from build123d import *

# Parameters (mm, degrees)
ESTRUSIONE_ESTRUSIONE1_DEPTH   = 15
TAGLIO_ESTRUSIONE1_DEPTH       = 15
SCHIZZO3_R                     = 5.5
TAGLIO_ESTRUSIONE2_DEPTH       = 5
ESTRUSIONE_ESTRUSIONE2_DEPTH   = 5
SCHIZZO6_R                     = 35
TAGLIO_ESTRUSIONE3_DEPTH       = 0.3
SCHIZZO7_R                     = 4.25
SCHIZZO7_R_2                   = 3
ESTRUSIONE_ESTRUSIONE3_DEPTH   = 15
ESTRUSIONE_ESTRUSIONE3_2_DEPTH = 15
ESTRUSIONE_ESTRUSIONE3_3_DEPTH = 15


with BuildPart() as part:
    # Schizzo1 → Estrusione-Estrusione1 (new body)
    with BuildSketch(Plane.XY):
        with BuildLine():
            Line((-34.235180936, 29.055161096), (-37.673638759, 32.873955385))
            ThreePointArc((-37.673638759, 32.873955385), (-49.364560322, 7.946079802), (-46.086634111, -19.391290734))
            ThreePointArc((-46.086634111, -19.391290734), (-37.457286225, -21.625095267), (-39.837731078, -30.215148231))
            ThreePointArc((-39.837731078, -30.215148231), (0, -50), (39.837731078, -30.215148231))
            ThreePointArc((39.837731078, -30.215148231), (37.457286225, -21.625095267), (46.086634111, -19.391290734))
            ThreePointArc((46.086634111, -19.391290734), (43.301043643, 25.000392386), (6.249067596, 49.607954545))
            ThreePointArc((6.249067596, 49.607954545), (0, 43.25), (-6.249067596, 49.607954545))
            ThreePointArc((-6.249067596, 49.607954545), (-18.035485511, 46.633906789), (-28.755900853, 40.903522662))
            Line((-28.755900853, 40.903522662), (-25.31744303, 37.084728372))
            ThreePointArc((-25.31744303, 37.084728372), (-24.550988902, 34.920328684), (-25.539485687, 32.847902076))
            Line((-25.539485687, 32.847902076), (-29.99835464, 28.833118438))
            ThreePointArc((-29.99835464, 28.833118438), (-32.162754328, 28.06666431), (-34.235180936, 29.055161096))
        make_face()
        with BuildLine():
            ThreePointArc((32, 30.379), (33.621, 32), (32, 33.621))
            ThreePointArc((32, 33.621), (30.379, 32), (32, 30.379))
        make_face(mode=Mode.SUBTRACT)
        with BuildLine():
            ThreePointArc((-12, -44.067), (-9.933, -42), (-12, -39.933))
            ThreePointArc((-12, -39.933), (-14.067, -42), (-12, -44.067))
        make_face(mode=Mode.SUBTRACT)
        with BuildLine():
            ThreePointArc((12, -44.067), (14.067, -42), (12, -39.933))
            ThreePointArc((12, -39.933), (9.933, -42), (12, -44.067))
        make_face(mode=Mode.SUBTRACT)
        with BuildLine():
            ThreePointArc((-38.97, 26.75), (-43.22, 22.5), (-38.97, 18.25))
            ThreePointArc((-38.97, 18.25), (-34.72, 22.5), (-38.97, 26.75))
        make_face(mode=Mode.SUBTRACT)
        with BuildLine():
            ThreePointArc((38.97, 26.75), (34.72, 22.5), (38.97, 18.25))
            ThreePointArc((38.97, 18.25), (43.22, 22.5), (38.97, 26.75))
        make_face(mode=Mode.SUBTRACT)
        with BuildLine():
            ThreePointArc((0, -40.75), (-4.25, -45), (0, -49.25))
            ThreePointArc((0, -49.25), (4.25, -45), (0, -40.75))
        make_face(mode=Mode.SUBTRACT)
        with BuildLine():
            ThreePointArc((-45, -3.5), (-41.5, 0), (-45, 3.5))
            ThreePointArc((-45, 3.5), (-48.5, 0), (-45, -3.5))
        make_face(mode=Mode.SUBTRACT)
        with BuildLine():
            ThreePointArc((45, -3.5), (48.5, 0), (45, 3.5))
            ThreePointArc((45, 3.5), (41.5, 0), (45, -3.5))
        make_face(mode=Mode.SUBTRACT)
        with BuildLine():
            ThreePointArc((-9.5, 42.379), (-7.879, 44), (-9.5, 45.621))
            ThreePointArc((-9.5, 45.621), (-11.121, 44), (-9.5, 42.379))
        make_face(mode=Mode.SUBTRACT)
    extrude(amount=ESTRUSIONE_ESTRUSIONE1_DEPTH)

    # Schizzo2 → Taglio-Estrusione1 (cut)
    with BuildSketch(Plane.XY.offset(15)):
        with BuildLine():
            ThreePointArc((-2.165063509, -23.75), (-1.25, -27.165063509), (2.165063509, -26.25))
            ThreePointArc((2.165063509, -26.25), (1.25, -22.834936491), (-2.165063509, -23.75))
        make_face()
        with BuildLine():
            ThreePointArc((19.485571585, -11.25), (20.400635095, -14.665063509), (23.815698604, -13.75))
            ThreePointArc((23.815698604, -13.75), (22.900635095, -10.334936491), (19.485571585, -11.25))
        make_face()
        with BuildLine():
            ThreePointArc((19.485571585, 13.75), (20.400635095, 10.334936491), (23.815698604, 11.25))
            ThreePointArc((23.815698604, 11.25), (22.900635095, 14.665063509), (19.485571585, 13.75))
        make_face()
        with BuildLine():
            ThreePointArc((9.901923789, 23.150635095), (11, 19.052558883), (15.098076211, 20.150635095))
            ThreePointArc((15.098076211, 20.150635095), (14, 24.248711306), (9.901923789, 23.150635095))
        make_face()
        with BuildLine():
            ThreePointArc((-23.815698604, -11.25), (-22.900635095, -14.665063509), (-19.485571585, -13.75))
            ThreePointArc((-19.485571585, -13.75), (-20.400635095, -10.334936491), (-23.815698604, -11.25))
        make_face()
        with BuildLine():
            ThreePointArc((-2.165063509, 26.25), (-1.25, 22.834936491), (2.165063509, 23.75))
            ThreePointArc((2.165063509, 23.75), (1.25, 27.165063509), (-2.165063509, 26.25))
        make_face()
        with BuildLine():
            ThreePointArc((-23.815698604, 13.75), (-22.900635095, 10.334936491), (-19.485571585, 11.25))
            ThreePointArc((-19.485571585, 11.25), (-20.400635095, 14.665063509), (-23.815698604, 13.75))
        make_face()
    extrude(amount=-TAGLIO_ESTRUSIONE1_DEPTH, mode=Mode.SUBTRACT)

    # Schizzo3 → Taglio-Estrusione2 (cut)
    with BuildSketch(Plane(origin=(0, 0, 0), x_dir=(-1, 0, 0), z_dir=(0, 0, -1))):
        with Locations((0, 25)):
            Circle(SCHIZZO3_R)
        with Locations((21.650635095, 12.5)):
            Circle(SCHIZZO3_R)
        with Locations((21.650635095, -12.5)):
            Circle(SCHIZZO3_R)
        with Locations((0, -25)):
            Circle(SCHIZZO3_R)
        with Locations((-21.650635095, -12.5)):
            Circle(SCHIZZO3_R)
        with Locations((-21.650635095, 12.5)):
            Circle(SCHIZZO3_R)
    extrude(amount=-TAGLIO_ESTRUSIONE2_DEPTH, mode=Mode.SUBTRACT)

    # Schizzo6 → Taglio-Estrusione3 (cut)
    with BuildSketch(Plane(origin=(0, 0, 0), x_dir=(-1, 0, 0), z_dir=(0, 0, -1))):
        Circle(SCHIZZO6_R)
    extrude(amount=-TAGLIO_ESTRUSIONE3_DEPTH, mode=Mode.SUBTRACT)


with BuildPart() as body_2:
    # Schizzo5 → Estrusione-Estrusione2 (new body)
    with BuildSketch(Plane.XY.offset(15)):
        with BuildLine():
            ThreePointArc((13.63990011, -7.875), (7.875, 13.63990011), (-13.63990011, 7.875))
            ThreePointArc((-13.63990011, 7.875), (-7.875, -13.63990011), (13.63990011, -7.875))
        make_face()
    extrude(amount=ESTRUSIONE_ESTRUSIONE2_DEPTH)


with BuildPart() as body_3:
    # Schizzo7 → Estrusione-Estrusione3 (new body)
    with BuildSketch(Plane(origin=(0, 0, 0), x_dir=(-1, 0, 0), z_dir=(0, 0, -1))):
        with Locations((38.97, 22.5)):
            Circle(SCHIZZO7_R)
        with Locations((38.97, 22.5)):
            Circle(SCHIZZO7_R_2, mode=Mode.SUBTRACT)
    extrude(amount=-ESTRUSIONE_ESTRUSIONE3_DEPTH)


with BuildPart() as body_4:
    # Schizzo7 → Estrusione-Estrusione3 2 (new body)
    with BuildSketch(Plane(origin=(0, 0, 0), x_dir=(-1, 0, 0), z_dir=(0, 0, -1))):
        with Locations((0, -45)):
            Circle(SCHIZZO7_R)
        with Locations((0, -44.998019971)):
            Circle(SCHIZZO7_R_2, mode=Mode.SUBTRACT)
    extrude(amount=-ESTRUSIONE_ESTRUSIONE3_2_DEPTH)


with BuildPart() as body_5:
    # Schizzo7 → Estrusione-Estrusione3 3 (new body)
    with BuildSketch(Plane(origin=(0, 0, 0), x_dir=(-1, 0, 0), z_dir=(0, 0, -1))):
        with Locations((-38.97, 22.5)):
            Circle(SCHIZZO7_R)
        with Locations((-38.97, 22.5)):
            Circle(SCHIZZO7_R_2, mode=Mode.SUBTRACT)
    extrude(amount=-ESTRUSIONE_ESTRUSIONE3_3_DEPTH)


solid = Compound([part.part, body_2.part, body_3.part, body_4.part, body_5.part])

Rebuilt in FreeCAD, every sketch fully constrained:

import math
import FreeCAD as App
import Part
import Sketcher
from FreeCAD import Vector
Q = App.Units.Quantity

doc = App.newDocument("Part")
body = doc.addObject("PartDesign::Body", "Body")

sketch1 = body.newObject("Sketcher::SketchObject", "Sketch")
sketch1.AttachmentSupport = (doc.getObject("XY_Plane"), [""])
sketch1.MapMode = "FlatFace"
sketch1.addGeometry(Part.LineSegment(Vector(-34.235181, 29.055161, 0), Vector(-37.673639, 32.873955, 0)), False)
sketch1.addGeometry(Part.ArcOfCircle(Part.Circle(Vector(0, 0, 0), Vector(0, 0, 1), 50), math.radians(138.892103), math.radians(202.819283)), False)
sketch1.addGeometry(Part.ArcOfCircle(Part.Circle(Vector(-42.87, -24.75, 0), Vector(0, 0, 1), 6.25), math.radians(-60.976846), math.radians(120.974829)), False)
sketch1.addGeometry(Part.ArcOfCircle(Part.Circle(Vector(0, 0, 0), Vector(0, 0, 1), 50), math.radians(-142.8213), math.radians(-37.1787)), False)
sketch1.addGeometry(Part.ArcOfCircle(Part.Circle(Vector(42.87, -24.75, 0), Vector(0, 0, 1), 6.25), math.radians(59.025171), math.radians(240.976846)), False)
sketch1.addGeometry(Part.ArcOfCircle(Part.Circle(Vector(0, 0, 0), Vector(0, 0, 1), 50), math.radians(-22.819283), math.radians(82.820321)), False)
sketch1.addGeometry(Part.ArcOfCircle(Part.Circle(Vector(0, 49.5, 0), Vector(0, 0, 1), 6.25), math.radians(179.010296), math.radians(360.989704)), False)
sketch1.addGeometry(Part.ArcOfCircle(Part.Circle(Vector(0, 0, 0), Vector(0, 0, 1), 50), math.radians(97.179679), math.radians(125.107897)), False)
sketch1.addGeometry(Part.LineSegment(Vector(-28.755901, 40.903523, 0), Vector(-25.317443, 37.084728, 0)), False)
sketch1.addGeometry(Part.ArcOfCircle(Part.Circle(Vector(-27.546878, 35.077337, 0), Vector(0, 0, 1), 3), math.radians(-48), math.radians(42)), False)
sketch1.addGeometry(Part.LineSegment(Vector(-25.539486, 32.847902, 0), Vector(-29.998355, 28.833118, 0)), False)
sketch1.addGeometry(Part.ArcOfCircle(Part.Circle(Vector(-32.005746, 31.062553, 0), Vector(0, 0, 1), 3), math.radians(-138), math.radians(-48)), False)
sketch1.addGeometry(Part.Circle(Vector(-12, -42, 0), Vector(0, 0, 1), 2.067), False)
sketch1.addGeometry(Part.Circle(Vector(0, -45, 0), Vector(0, 0, 1), 4.25), False)
sketch1.addGeometry(Part.Circle(Vector(12, -42, 0), Vector(0, 0, 1), 2.067), False)
sketch1.addGeometry(Part.Circle(Vector(-45, 0, 0), Vector(0, 0, 1), 3.5), False)
sketch1.addGeometry(Part.Circle(Vector(-38.97, 22.5, 0), Vector(0, 0, 1), 4.25), False)
sketch1.addGeometry(Part.Circle(Vector(-9.5, 44, 0), Vector(0, 0, 1), 1.621), False)
sketch1.addGeometry(Part.Circle(Vector(45, 0, 0), Vector(0, 0, 1), 3.5), False)
sketch1.addGeometry(Part.Circle(Vector(32, 32, 0), Vector(0, 0, 1), 1.621), False)
sketch1.addGeometry(Part.Circle(Vector(38.97, 22.5, 0), Vector(0, 0, 1), 4.25), False)
sketch1.addConstraint(Sketcher.Constraint("Coincident", 0, 2, 1, 1))
sketch1.addConstraint(Sketcher.Constraint("Coincident", 1, 2, 2, 2))
sketch1.addConstraint(Sketcher.Constraint("Coincident", 2, 1, 3, 1))
sketch1.addConstraint(Sketcher.Constraint("Coincident", 3, 2, 4, 2))
sketch1.addConstraint(Sketcher.Constraint("Coincident", 4, 1, 5, 1))
sketch1.addConstraint(Sketcher.Constraint("Coincident", 5, 2, 6, 2))
sketch1.addConstraint(Sketcher.Constraint("Coincident", 6, 1, 7, 1))
sketch1.addConstraint(Sketcher.Constraint("Coincident", 7, 2, 8, 1))
sketch1.addConstraint(Sketcher.Constraint("Tangent", 8, 2, 9, 2))
sketch1.addConstraint(Sketcher.Constraint("Tangent", 9, 1, 10, 1))
sketch1.addConstraint(Sketcher.Constraint("Tangent", 10, 2, 11, 2))
sketch1.addConstraint(Sketcher.Constraint("Tangent", 11, 1, 0, 1))
sketch1.addConstraint(Sketcher.Constraint("Coincident", 1, 3, -1, 1))
sketch1.addConstraint(Sketcher.Constraint("Coincident", 3, 3, -1, 1))
sketch1.addConstraint(Sketcher.Constraint("Coincident", 5, 3, -1, 1))
sketch1.addConstraint(Sketcher.Constraint("Coincident", 7, 3, -1, 1))
sketch1.addConstraint(Sketcher.Constraint("Equal", 1, 3))
sketch1.addConstraint(Sketcher.Constraint("Equal", 2, 4))
sketch1.addConstraint(Sketcher.Constraint("Equal", 3, 5))
sketch1.addConstraint(Sketcher.Constraint("Equal", 4, 6))
sketch1.addConstraint(Sketcher.Constraint("Equal", 5, 7))
sketch1.addConstraint(Sketcher.Constraint("Equal", 9, 11))
sketch1.addConstraint(Sketcher.Constraint("Equal", 12, 14))
sketch1.addConstraint(Sketcher.Constraint("Equal", 13, 16))
sketch1.addConstraint(Sketcher.Constraint("Equal", 15, 18))
sketch1.addConstraint(Sketcher.Constraint("Equal", 17, 19))
sketch1.addConstraint(Sketcher.Constraint("Equal", 16, 20))
sketch1.addConstraint(Sketcher.Constraint("Symmetric", 15, 3, 18, 3, -1, 1))
sketch1.addConstraint(Sketcher.Constraint("Symmetric", 2, 3, 4, 3, -2))
sketch1.addConstraint(Sketcher.Constraint("Symmetric", 12, 3, 14, 3, -2))
sketch1.addConstraint(Sketcher.Constraint("Symmetric", 16, 3, 20, 3, -2))
sketch1.addConstraint(Sketcher.Constraint("PointOnObject", 6, 3, -2))
sketch1.addConstraint(Sketcher.Constraint("PointOnObject", 13, 3, -2))
sketch1.addConstraint(Sketcher.Constraint("PointOnObject", 15, 3, -1))
sketch1.addConstraint(Sketcher.Constraint("Parallel", 0, 8))
sketch1.addConstraint(Sketcher.Constraint("Perpendicular", 8, 10))
sketch1.addConstraint(Sketcher.Constraint("Equal", 0, 8))
sketch1.addConstraint(Sketcher.Constraint("Diameter", 15, 7.0))
sketch1.addConstraint(Sketcher.Constraint("Radius", 1, 50.0))
sketch1.addConstraint(Sketcher.Constraint("Radius", 9, 3.0))
sketch1.addConstraint(Sketcher.Constraint("Diameter", 13, 8.5))
sketch1.addConstraint(Sketcher.Constraint("Angle", 0, Q("132 deg")))
sketch1.addConstraint(Sketcher.Constraint("Radius", 2, 6.25))
sketch1.addConstraint(Sketcher.Constraint("Distance", 10, 6.0))
sketch1.addConstraint(Sketcher.Constraint("Diameter", 12, 4.134))
sketch1.addConstraint(Sketcher.Constraint("Diameter", 17, 3.242))
sketch1.addConstraint(Sketcher.Constraint("DistanceX", 12, 3, -1, 1, 12.0))
sketch1.addConstraint(Sketcher.Constraint("DistanceY", 12, 3, -1, 1, 42.0))
sketch1.addConstraint(Sketcher.Constraint("DistanceY", 13, 3, -1, 1, 45.0))
sketch1.addConstraint(Sketcher.Constraint("DistanceX", 15, 3, -1, 1, 45.0))
sketch1.addConstraint(Sketcher.Constraint("DistanceY", -1, 1, 17, 3, 44.0))
sketch1.addConstraint(Sketcher.Constraint("DistanceX", -1, 1, 19, 3, 32.0))
sketch1.addConstraint(Sketcher.Constraint("DistanceY", -1, 1, 19, 3, 32.0))
sketch1.addConstraint(Sketcher.Constraint("DistanceY", -1, 1, 6, 3, 49.5))
sketch1.addConstraint(Sketcher.Constraint("DistanceY", -1, 1, 16, 3, 22.5))
sketch1.addConstraint(Sketcher.Constraint("DistanceX", 17, 3, -1, 1, 9.5))
sketch1.addConstraint(Sketcher.Constraint("DistanceX", 2, 3, -1, 1, 42.87))
sketch1.addConstraint(Sketcher.Constraint("DistanceY", 2, 3, -1, 1, 24.75))
sketch1.addConstraint(Sketcher.Constraint("DistanceX", 16, 3, -1, 1, 38.97))
sketch1.addConstraint(Sketcher.Constraint("DistanceY", 11, 3, 6, 1, 18.545402))
pad1 = body.newObject("PartDesign::Pad", "Pad")
pad1.Profile = sketch1
pad1.Length = 15

sketch2 = body.newObject("Sketcher::SketchObject", "Sketch001")
sketch2.AttachmentSupport = (doc.getObject("XY_Plane"), [""])
sketch2.MapMode = "FlatFace"
sketch2.AttachmentOffset = App.Placement(Vector(0, 0, 15), App.Rotation())
sketch2.addGeometry(Part.Circle(Vector(0, -25, 0), Vector(0, 0, 1), 2.5), False)
sketch2.addGeometry(Part.ArcOfCircle(Part.Circle(Vector(21.650635, -12.5, 0), Vector(0, 0, 1), 2.5), math.radians(150), math.radians(330)), False)
sketch2.addGeometry(Part.ArcOfCircle(Part.Circle(Vector(21.650635, -12.5, 0), Vector(0, 0, 1), 2.5), math.radians(-30), math.radians(150)), False)
sketch2.addGeometry(Part.ArcOfCircle(Part.Circle(Vector(21.650635, 12.5, 0), Vector(0, 0, 1), 2.5), math.radians(150), math.radians(330)), False)
sketch2.addGeometry(Part.ArcOfCircle(Part.Circle(Vector(21.650635, 12.5, 0), Vector(0, 0, 1), 2.5), math.radians(-30), math.radians(150)), False)
sketch2.addGeometry(Part.ArcOfCircle(Part.Circle(Vector(12.5, 21.650635, 0), Vector(0, 0, 1), 3), math.radians(150), math.radians(330)), False)
sketch2.addGeometry(Part.ArcOfCircle(Part.Circle(Vector(12.5, 21.650635, 0), Vector(0, 0, 1), 3), math.radians(-30), math.radians(150)), False)
sketch2.addGeometry(Part.ArcOfCircle(Part.Circle(Vector(-21.650635, -12.5, 0), Vector(0, 0, 1), 2.5), math.radians(150), math.radians(330)), False)
sketch2.addGeometry(Part.ArcOfCircle(Part.Circle(Vector(-21.650635, -12.5, 0), Vector(0, 0, 1), 2.5), math.radians(-30), math.radians(150)), False)
sketch2.addGeometry(Part.Circle(Vector(0, 25, 0), Vector(0, 0, 1), 2.5), False)
sketch2.addGeometry(Part.ArcOfCircle(Part.Circle(Vector(-21.650635, 12.5, 0), Vector(0, 0, 1), 2.5), math.radians(150), math.radians(330)), False)
sketch2.addGeometry(Part.ArcOfCircle(Part.Circle(Vector(-21.650635, 12.5, 0), Vector(0, 0, 1), 2.5), math.radians(-30), math.radians(150)), False)
sketch2.addConstraint(Sketcher.Constraint("Tangent", 1, 1, 2, 2))
sketch2.addConstraint(Sketcher.Constraint("Coincident", 2, 1, 1, 2))
sketch2.addConstraint(Sketcher.Constraint("Tangent", 3, 1, 4, 2))
sketch2.addConstraint(Sketcher.Constraint("Coincident", 4, 1, 3, 2))
sketch2.addConstraint(Sketcher.Constraint("Tangent", 5, 1, 6, 2))
sketch2.addConstraint(Sketcher.Constraint("Coincident", 6, 1, 5, 2))
sketch2.addConstraint(Sketcher.Constraint("Tangent", 7, 1, 8, 2))
sketch2.addConstraint(Sketcher.Constraint("Coincident", 8, 1, 7, 2))
sketch2.addConstraint(Sketcher.Constraint("Tangent", 10, 1, 11, 2))
sketch2.addConstraint(Sketcher.Constraint("Coincident", 11, 1, 10, 2))
sketch2.addConstraint(Sketcher.Constraint("Equal", 0, 1))
sketch2.addConstraint(Sketcher.Constraint("Equal", 2, 3))
sketch2.addConstraint(Sketcher.Constraint("Equal", 4, 7))
sketch2.addConstraint(Sketcher.Constraint("Equal", 8, 9))
sketch2.addConstraint(Sketcher.Constraint("Equal", 9, 10))
sketch2.addConstraint(Sketcher.Constraint("Symmetric", 3, 3, 7, 3, -1, 1))
sketch2.addConstraint(Sketcher.Constraint("Symmetric", 0, 3, 9, 3, -1, 1))
sketch2.addConstraint(Sketcher.Constraint("Symmetric", 1, 3, 10, 3, -1, 1))
sketch2.addConstraint(Sketcher.Constraint("Symmetric", 1, 3, 7, 3, -2))
sketch2.addConstraint(Sketcher.Constraint("PointOnObject", 0, 3, -2))
sketch2.addConstraint(Sketcher.Constraint("Horizontal", 1, 1, 7, 1))
sketch2.addConstraint(Sketcher.Constraint("Horizontal", 2, 1, 8, 1))
sketch2.addConstraint(Sketcher.Constraint("Horizontal", 3, 1, 10, 1))
sketch2.addConstraint(Sketcher.Constraint("Horizontal", 4, 1, 11, 1))
sketch2.addConstraint(Sketcher.Constraint("Vertical", 1, 1, 3, 1))
sketch2.addConstraint(Sketcher.Constraint("Vertical", 2, 1, 4, 1))
sketch2.addConstraint(Sketcher.Constraint("Diameter", 0, 5.0))
sketch2.addConstraint(Sketcher.Constraint("Radius", 5, 3.0))
sketch2.addConstraint(Sketcher.Constraint("DistanceY", 0, 3, -1, 1, 25.0))
sketch2.addConstraint(Sketcher.Constraint("DistanceY", 1, 3, 3, 3, 25.0))
sketch2.addConstraint(Sketcher.Constraint("DistanceY", 6, 1, 5, 1, 3.0))
sketch2.addConstraint(Sketcher.Constraint("DistanceX", -1, 1, 5, 3, 12.5))
sketch2.addConstraint(Sketcher.Constraint("DistanceY", 2, 1, 1, 1, 2.5))
sketch2.addConstraint(Sketcher.Constraint("DistanceY", 6, 3, 5, 1, 1.5))
sketch2.addConstraint(Sketcher.Constraint("DistanceY", 1, 1, -1, 1, 11.25))
sketch2.addConstraint(Sketcher.Constraint("DistanceX", -1, 1, 2, 1, 23.815699))
sketch2.addConstraint(Sketcher.Constraint("DistanceY", -1, 1, 5, 3, 21.650635))
pocket1 = body.newObject("PartDesign::Pocket", "Pocket")
pocket1.Profile = sketch2
pocket1.Length = 15

sketch3 = body.newObject("Sketcher::SketchObject", "Sketch002")
sketch3.AttachmentSupport = (doc.getObject("XY_Plane"), [""])
sketch3.MapMode = "FlatFace"
sketch3.addGeometry(Part.Circle(Vector(0, 25, 0), Vector(0, 0, 1), 5.5), False)
sketch3.addGeometry(Part.Circle(Vector(-21.650635, 12.5, 0), Vector(0, 0, 1), 5.5), False)
sketch3.addGeometry(Part.Circle(Vector(-21.650635, -12.5, 0), Vector(0, 0, 1), 5.5), False)
sketch3.addGeometry(Part.Circle(Vector(0, -25, 0), Vector(0, 0, 1), 5.5), False)
sketch3.addGeometry(Part.Circle(Vector(21.650635, -12.5, 0), Vector(0, 0, 1), 5.5), False)
sketch3.addGeometry(Part.Circle(Vector(21.650635, 12.5, 0), Vector(0, 0, 1), 5.5), False)
sketch3.addConstraint(Sketcher.Constraint("Equal", 0, 1))
sketch3.addConstraint(Sketcher.Constraint("Equal", 1, 2))
sketch3.addConstraint(Sketcher.Constraint("Equal", 2, 3))
sketch3.addConstraint(Sketcher.Constraint("Equal", 3, 4))
sketch3.addConstraint(Sketcher.Constraint("Equal", 4, 5))
sketch3.addConstraint(Sketcher.Constraint("Symmetric", 0, 3, 3, 3, -1, 1))
sketch3.addConstraint(Sketcher.Constraint("Symmetric", 1, 3, 4, 3, -1, 1))
sketch3.addConstraint(Sketcher.Constraint("Symmetric", 2, 3, 5, 3, -1, 1))
sketch3.addConstraint(Sketcher.Constraint("Symmetric", 2, 3, 4, 3, -2))
sketch3.addConstraint(Sketcher.Constraint("PointOnObject", 0, 3, -2))
sketch3.addConstraint(Sketcher.Constraint("Diameter", 0, 11.0))
sketch3.addConstraint(Sketcher.Constraint("DistanceY", -1, 1, 0, 3, 25.0))
sketch3.addConstraint(Sketcher.Constraint("DistanceY", 2, 3, 1, 3, 25.0))
sketch3.addConstraint(Sketcher.Constraint("DistanceX", 2, 3, 4, 3, 43.30127))
pocket2 = body.newObject("PartDesign::Pocket", "Pocket001")
pocket2.Profile = sketch3
pocket2.Length = 5
pocket2.Reversed = True

sketch4 = body.newObject("Sketcher::SketchObject", "Sketch003")
sketch4.AttachmentSupport = (doc.getObject("XY_Plane"), [""])
sketch4.MapMode = "FlatFace"
sketch4.addGeometry(Part.Circle(Vector(0, 0, 0), Vector(0, 0, 1), 35), False)
sketch4.addConstraint(Sketcher.Constraint("Coincident", 0, 3, -1, 1))
sketch4.addConstraint(Sketcher.Constraint("Diameter", 0, 70.0))
pocket3 = body.newObject("PartDesign::Pocket", "Pocket002")
pocket3.Profile = sketch4
pocket3.Length = 0.3
pocket3.Reversed = True
body2 = doc.addObject("PartDesign::Body", "Body001")

sketch5 = body2.newObject("Sketcher::SketchObject", "Sketch004")
sketch5.AttachmentSupport = (doc.getObject("XY_Plane001"), [""])
sketch5.MapMode = "FlatFace"
sketch5.AttachmentOffset = App.Placement(Vector(0, 0, 15), App.Rotation())
sketch5.addGeometry(Part.Circle(Vector(0, 0, 0), Vector(0, 0, 1), 15.75), False)
sketch5.addConstraint(Sketcher.Constraint("Coincident", 0, 3, -1, 1))
sketch5.addConstraint(Sketcher.Constraint("Diameter", 0, 31.5))
pad2 = body2.newObject("PartDesign::Pad", "Pad001")
pad2.Profile = sketch5
pad2.Length = 5
body3 = doc.addObject("PartDesign::Body", "Body002")

sketch6 = body3.newObject("Sketcher::SketchObject", "Sketch005")
sketch6.AttachmentSupport = (doc.getObject("XY_Plane002"), [""])
sketch6.MapMode = "FlatFace"
sketch6.addGeometry(Part.Circle(Vector(-38.97, 22.5, 0), Vector(0, 0, 1), 4.25), False)
sketch6.addGeometry(Part.Circle(Vector(-38.97, 22.5, 0), Vector(0, 0, 1), 3), False)
sketch6.addConstraint(Sketcher.Constraint("Coincident", 1, 3, 0, 3))
sketch6.addConstraint(Sketcher.Constraint("Diameter", 1, 6.0))
sketch6.addConstraint(Sketcher.Constraint("Diameter", 0, 8.5))
sketch6.addConstraint(Sketcher.Constraint("DistanceY", -1, 1, 0, 3, 22.5))
sketch6.addConstraint(Sketcher.Constraint("DistanceX", 0, 3, -1, 1, 38.97))
pad3 = body3.newObject("PartDesign::Pad", "Pad002")
pad3.Profile = sketch6
pad3.Length = 15
body4 = doc.addObject("PartDesign::Body", "Body003")

sketch7 = body4.newObject("Sketcher::SketchObject", "Sketch006")
sketch7.AttachmentSupport = (doc.getObject("XY_Plane003"), [""])
sketch7.MapMode = "FlatFace"
sketch7.addGeometry(Part.Circle(Vector(0, -45, 0), Vector(0, 0, 1), 4.25), False)
sketch7.addGeometry(Part.Circle(Vector(0, -44.99802, 0), Vector(0, 0, 1), 3), False)
sketch7.addConstraint(Sketcher.Constraint("PointOnObject", 0, 3, -2))
sketch7.addConstraint(Sketcher.Constraint("PointOnObject", 1, 3, -2))
sketch7.addConstraint(Sketcher.Constraint("Diameter", 1, 6.0))
sketch7.addConstraint(Sketcher.Constraint("Diameter", 0, 8.5))
sketch7.addConstraint(Sketcher.Constraint("DistanceY", 0, 3, -1, 1, 45.0))
sketch7.addConstraint(Sketcher.Constraint("DistanceY", 1, 3, -1, 1, 44.99802))
pad4 = body4.newObject("PartDesign::Pad", "Pad003")
pad4.Profile = sketch7
pad4.Length = 15
body5 = doc.addObject("PartDesign::Body", "Body004")

sketch8 = body5.newObject("Sketcher::SketchObject", "Sketch007")
sketch8.AttachmentSupport = (doc.getObject("XY_Plane004"), [""])
sketch8.MapMode = "FlatFace"
sketch8.addGeometry(Part.Circle(Vector(38.97, 22.5, 0), Vector(0, 0, 1), 4.25), False)
sketch8.addGeometry(Part.Circle(Vector(38.97, 22.5, 0), Vector(0, 0, 1), 3), False)
sketch8.addConstraint(Sketcher.Constraint("Coincident", 1, 3, 0, 3))
sketch8.addConstraint(Sketcher.Constraint("Diameter", 1, 6.0))
sketch8.addConstraint(Sketcher.Constraint("Diameter", 0, 8.5))
sketch8.addConstraint(Sketcher.Constraint("DistanceY", -1, 1, 0, 3, 22.5))
sketch8.addConstraint(Sketcher.Constraint("DistanceX", -1, 1, 0, 3, 38.97))
pad5 = body5.newObject("PartDesign::Pad", "Pad004")
pad5.Profile = sketch8
pad5.Length = 15

doc.recompute()
